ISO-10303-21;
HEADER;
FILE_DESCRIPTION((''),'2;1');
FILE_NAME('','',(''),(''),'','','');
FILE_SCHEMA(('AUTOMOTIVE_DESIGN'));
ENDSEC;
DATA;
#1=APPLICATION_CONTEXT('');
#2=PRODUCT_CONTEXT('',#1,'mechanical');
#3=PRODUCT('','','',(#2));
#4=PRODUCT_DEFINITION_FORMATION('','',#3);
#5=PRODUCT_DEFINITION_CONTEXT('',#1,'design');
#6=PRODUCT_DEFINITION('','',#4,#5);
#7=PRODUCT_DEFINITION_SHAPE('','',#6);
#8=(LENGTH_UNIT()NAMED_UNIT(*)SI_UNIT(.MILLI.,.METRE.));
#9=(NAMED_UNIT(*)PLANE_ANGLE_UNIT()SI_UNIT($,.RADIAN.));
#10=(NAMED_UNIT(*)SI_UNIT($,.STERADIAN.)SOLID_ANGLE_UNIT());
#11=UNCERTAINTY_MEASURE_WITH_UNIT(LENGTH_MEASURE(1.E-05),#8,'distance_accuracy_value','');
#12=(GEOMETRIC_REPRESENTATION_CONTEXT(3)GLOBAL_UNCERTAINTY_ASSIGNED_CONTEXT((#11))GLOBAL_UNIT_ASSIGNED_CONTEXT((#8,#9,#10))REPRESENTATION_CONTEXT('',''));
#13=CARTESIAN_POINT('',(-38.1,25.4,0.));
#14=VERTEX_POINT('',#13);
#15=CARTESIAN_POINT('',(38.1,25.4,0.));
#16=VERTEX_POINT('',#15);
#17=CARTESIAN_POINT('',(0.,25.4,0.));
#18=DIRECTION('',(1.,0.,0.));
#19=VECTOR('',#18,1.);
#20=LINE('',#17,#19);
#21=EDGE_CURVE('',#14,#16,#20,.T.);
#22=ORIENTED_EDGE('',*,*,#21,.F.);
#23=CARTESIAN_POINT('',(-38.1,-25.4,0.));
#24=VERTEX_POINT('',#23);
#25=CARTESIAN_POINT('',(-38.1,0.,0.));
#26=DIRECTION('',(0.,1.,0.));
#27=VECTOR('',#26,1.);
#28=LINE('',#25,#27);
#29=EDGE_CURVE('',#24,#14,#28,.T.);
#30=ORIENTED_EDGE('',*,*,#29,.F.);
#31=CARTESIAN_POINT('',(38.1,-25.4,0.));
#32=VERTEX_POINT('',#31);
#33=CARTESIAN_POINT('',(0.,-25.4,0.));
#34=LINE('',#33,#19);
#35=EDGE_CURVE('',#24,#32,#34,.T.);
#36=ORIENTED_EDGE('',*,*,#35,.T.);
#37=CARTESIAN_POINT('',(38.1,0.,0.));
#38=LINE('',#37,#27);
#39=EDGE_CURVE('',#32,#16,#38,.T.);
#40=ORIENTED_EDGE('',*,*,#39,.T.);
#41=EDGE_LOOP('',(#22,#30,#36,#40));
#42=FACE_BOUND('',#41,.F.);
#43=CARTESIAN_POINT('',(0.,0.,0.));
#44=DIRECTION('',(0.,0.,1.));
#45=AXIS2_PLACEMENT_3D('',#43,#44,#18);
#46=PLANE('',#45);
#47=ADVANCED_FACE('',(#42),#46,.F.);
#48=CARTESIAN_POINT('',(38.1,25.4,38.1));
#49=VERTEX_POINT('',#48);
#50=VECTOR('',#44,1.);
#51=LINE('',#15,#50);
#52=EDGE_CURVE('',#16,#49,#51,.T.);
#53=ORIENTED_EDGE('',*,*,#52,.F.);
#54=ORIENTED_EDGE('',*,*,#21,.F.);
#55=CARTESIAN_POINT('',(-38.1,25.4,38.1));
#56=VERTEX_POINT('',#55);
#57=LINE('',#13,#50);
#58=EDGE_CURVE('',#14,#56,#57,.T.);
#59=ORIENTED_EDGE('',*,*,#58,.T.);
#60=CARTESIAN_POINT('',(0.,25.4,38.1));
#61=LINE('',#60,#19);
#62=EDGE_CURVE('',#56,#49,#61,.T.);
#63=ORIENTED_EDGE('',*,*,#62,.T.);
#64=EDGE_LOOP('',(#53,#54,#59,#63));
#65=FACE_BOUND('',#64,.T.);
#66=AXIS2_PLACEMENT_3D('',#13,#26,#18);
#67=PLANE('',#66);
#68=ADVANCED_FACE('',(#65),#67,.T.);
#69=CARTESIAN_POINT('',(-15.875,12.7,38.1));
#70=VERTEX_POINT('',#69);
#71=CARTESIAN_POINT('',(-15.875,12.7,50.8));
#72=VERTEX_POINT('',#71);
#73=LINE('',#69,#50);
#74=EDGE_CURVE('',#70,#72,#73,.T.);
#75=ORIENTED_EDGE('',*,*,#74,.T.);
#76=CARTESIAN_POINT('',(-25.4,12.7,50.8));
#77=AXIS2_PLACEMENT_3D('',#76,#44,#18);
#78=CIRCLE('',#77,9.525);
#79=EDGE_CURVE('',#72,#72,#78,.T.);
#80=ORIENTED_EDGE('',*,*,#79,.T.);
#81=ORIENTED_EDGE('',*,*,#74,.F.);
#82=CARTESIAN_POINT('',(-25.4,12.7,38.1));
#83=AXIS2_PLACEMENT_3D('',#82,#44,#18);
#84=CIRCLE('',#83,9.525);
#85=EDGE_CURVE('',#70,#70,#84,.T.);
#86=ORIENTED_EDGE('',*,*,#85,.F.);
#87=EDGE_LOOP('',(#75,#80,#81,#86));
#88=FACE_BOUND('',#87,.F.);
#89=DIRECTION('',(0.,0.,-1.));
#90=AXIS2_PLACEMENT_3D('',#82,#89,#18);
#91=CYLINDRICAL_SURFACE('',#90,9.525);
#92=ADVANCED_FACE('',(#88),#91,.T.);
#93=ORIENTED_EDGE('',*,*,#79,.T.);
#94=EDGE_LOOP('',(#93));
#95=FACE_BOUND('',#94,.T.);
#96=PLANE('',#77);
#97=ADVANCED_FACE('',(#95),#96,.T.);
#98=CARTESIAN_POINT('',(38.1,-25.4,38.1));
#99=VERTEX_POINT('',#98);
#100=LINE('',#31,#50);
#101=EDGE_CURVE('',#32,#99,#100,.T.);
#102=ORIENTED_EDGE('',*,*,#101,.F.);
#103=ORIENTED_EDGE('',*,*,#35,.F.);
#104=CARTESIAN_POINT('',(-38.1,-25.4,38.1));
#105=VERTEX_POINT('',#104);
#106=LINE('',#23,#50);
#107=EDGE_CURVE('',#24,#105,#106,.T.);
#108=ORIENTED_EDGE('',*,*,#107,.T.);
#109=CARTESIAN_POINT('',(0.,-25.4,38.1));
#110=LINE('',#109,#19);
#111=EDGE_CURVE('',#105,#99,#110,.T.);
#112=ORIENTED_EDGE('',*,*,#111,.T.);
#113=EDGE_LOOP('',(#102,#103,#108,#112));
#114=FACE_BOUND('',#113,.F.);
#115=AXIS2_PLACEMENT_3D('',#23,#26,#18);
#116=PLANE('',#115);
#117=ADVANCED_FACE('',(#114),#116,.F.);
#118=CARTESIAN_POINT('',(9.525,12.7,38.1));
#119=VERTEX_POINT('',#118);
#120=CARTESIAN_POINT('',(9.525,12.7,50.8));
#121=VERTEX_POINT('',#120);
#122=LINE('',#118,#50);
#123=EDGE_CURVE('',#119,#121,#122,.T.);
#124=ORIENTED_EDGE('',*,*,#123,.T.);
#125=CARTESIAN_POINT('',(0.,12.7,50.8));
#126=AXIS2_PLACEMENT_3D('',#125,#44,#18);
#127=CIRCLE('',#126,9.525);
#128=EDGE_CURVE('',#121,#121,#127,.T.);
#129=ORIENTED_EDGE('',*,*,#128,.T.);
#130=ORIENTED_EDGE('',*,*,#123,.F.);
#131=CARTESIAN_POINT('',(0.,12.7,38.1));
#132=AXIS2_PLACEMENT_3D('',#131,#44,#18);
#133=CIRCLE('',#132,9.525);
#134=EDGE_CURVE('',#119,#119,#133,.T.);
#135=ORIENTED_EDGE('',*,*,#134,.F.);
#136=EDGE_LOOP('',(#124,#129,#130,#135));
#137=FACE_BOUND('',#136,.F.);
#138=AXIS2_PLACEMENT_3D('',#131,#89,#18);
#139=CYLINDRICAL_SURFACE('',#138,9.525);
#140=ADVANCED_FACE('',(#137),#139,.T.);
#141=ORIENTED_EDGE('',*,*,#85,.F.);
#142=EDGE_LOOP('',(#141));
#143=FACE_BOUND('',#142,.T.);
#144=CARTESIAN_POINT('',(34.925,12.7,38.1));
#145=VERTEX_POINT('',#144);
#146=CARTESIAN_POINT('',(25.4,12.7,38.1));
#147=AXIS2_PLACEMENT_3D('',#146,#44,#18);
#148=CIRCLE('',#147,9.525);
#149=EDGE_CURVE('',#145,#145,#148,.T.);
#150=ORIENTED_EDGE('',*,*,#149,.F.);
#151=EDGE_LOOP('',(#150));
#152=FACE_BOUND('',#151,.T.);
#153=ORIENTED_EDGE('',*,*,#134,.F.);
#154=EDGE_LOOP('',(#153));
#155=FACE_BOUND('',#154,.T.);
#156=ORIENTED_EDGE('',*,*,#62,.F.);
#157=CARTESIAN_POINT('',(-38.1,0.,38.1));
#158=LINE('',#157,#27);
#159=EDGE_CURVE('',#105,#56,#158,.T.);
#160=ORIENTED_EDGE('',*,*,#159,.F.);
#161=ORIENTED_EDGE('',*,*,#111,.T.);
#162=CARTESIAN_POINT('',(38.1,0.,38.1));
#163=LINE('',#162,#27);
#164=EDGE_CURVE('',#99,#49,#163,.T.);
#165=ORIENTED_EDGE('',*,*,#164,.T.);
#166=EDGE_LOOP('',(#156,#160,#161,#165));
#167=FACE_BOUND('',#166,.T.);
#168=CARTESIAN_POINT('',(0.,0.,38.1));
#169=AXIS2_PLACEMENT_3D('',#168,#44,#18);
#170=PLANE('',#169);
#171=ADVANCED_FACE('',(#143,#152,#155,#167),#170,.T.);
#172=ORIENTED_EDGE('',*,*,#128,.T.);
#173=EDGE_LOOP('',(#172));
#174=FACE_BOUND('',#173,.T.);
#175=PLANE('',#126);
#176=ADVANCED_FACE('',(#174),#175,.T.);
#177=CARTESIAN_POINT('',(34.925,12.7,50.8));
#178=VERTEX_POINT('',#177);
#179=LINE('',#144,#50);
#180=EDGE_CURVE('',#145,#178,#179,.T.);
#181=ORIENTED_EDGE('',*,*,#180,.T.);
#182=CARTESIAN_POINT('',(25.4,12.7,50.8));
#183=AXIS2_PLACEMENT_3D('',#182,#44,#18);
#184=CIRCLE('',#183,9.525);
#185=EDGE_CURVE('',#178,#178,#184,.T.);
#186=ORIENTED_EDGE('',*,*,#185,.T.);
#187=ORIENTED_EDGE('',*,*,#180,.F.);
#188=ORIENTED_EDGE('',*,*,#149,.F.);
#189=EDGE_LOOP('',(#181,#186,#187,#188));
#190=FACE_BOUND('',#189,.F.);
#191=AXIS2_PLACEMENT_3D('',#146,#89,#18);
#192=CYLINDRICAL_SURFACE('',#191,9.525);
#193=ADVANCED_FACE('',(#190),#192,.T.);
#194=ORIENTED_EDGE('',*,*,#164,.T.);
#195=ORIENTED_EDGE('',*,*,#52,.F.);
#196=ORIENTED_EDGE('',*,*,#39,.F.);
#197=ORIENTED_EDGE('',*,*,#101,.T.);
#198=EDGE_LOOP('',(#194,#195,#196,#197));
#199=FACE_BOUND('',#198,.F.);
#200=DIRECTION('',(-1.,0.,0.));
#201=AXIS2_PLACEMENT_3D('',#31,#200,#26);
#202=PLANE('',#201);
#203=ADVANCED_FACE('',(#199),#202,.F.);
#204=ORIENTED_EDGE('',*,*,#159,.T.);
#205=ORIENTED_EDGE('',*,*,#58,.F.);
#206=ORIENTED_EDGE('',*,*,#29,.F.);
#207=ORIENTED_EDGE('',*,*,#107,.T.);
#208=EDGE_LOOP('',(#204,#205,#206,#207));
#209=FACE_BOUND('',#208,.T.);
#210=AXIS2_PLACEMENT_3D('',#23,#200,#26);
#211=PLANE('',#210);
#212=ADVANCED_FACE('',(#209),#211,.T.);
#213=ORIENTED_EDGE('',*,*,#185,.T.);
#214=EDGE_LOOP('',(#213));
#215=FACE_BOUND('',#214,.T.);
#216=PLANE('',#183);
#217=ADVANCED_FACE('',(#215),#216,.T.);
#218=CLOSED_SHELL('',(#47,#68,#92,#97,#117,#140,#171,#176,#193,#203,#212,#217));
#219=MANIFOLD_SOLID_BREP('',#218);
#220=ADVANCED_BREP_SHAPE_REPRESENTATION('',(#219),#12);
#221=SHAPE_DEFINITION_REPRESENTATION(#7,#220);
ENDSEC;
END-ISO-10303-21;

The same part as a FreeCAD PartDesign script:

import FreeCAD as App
import Part
import Sketcher

V = App.Vector
Q = App.Units.Quantity

doc = App.newDocument("Part")
params = doc.addObject("Spreadsheet::Sheet", "Params")
for row, (alias, value) in enumerate([
    ("sketch1_width", "3 in"),
    ("sketch1_height", "2 in"),
    ("pad1_length", "1.5 in"),
    ("sketch2_diameter", "0.75 in"),
    ("pad2_length", "0.5 in"),
], start=1):
    params.set(f"A{row}", alias)
    params.set(f"B{row}", "=" + value)
    params.setAlias(f"B{row}", alias)

body = doc.addObject("PartDesign::Body", "Body")

# Sketch on XY plane
sketch1 = body.newObject("Sketcher::SketchObject", "Sketch")
sketch1.AttachmentSupport = (doc.getObject("XY_Plane"), [""])
sketch1.MapMode = "FlatFace"
sketch1.addGeometry(Part.LineSegment(V(-38, 25, 0), V(-38, -25, 0)), False)
sketch1.addGeometry(Part.LineSegment(V(-38, -25, 0), V(38, -25, 0)), False)
sketch1.addGeometry(Part.LineSegment(V(38, -25, 0), V(38, 25, 0)), False)
sketch1.addGeometry(Part.LineSegment(V(38, 25, 0), V(-38, 25, 0)), False)
sketch1.addConstraint(Sketcher.Constraint("Coincident", 0, 2, 1, 1))
sketch1.addConstraint(Sketcher.Constraint("Coincident", 1, 2, 2, 1))
sketch1.addConstraint(Sketcher.Constraint("Coincident", 2, 2, 3, 1))
sketch1.addConstraint(Sketcher.Constraint("Coincident", 3, 2, 0, 1))
sketch1.addConstraint(Sketcher.Constraint("Vertical", 0))
sketch1.addConstraint(Sketcher.Constraint("Horizontal", 1))
sketch1.addConstraint(Sketcher.Constraint("Vertical", 2))
sketch1.addConstraint(Sketcher.Constraint("Horizontal", 3))
sketch1.addConstraint(Sketcher.Constraint("Symmetric", 0, 2, 2, 2, -1, 1))
sketch1.addConstraint(Sketcher.Constraint("DistanceX", 1, 1, 1, 2, Q("3 in")))
sketch1.addConstraint(Sketcher.Constraint("DistanceY", 0, 2, 0, 1, Q("2 in")))
sketch1.setExpression("Constraints[9]", "Params.sketch1_width")
sketch1.setExpression("Constraints[10]", "Params.sketch1_height")
pad1 = body.newObject("PartDesign::Pad", "Pad")
pad1.Profile = sketch1
pad1.setExpression("Length", "Params.pad1_length")

# Sketch on XY plane
sketch2 = body.newObject("Sketcher::SketchObject", "Sketch001")
sketch2.AttachmentSupport = (doc.getObject("XY_Plane"), [""])
sketch2.MapMode = "FlatFace"
sketch2.AttachmentOffset = App.Placement(V(0, 0, 1.5 * 25.4), App.Rotation())
sketch2.addGeometry(Part.Circle(V(-25, 13, 0), V(0, 0, 1), 10), False)
sketch2.addGeometry(Part.Circle(V(0, 13, 0), V(0, 0, 1), 10), False)
sketch2.addGeometry(Part.Circle(V(25, 13, 0), V(0, 0, 1), 10), False)
sketch2.addConstraint(Sketcher.Constraint("Equal", 0, 1))
sketch2.addConstraint(Sketcher.Constraint("Equal", 1, 2))
sketch2.addConstraint(Sketcher.Constraint("Symmetric", 0, 3, 2, 3, -2))
sketch2.addConstraint(Sketcher.Constraint("PointOnObject", 1, 3, -2))
sketch2.addConstraint(Sketcher.Constraint("Horizontal", 0, 3, 1, 3))
sketch2.addConstraint(Sketcher.Constraint("Diameter", 0, Q("0.75 in")))
sketch2.addConstraint(Sketcher.Constraint("DistanceX", 0, 3, -1, 1, Q("1 in")))
sketch2.addConstraint(Sketcher.Constraint("DistanceY", -1, 1, 0, 3, Q("0.5 in")))
sketch2.setExpression("Constraints[5]", "Params.sketch2_diameter")
pad2 = body.newObject("PartDesign::Pad", "Pad001")
pad2.Profile = sketch2
pad2.setExpression("Length", "Params.pad2_length")

doc.recompute()
